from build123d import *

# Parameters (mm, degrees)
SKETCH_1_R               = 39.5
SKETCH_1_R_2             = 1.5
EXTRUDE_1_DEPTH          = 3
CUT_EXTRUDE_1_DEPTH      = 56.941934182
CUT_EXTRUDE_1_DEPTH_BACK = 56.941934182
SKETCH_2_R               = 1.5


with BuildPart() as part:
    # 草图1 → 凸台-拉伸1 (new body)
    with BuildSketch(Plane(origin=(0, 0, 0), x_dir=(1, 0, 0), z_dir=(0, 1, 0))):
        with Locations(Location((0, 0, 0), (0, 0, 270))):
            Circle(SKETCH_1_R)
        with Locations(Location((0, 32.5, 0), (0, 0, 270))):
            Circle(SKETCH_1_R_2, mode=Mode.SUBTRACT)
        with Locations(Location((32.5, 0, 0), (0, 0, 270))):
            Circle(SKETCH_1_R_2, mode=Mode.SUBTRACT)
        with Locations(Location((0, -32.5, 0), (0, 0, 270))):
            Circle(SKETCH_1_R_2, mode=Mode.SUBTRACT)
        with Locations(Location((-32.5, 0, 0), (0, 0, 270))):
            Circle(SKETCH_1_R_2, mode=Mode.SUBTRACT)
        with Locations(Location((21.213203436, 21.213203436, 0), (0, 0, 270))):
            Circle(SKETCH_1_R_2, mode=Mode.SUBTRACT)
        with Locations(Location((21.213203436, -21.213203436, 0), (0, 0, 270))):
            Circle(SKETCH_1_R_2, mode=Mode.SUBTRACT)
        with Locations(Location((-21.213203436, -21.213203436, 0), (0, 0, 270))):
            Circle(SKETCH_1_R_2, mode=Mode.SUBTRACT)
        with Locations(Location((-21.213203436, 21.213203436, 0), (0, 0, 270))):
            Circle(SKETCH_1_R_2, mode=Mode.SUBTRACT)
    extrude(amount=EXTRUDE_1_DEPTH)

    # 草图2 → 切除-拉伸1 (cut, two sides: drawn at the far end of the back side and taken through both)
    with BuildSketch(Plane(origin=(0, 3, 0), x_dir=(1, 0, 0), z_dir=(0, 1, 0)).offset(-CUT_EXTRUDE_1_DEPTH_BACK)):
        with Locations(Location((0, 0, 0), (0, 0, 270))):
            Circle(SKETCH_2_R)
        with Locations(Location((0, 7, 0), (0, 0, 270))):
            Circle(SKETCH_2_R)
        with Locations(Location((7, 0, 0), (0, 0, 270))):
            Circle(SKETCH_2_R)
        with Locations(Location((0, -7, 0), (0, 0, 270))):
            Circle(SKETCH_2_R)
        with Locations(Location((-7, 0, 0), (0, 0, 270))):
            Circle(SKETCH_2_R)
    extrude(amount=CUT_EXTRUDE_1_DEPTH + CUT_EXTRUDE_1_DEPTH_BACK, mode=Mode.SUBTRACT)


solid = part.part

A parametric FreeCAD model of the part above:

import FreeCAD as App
import Part
import Sketcher
from FreeCAD import Vector
Q = App.Units.Quantity

doc = App.newDocument("Part")
params = doc.addObject("Spreadsheet::Sheet", "Params")
for row, (alias, value) in enumerate([
    ("sketch1_diameter", "79 mm"),
    ("sketch1_diameter2", "3 mm"),
    ("pad1_length", "3 mm"),
    ("sketch2_diameter", "3 mm"),
], start=1):
    params.set(f"A{row}", alias)
    params.set(f"B{row}", "=" + value)
    params.setAlias(f"B{row}", alias)

body = doc.addObject("PartDesign::Body", "Body")

sketch1 = body.newObject("Sketcher::SketchObject", "Sketch")
sketch1.AttachmentSupport = (doc.getObject("XZ_Plane"), [""])
sketch1.MapMode = "FlatFace"
sketch1.addGeometry(Part.Circle(Vector(0, 0, 0), Vector(0, 0, 1), 39.5), False)
sketch1.addGeometry(Part.Circle(Vector(-21.2, -21.2, 0), Vector(0, 0, 1), 1.5), False)
sketch1.addGeometry(Part.Circle(Vector(0, -32.5, 0), Vector(0, 0, 1), 1.5), False)
sketch1.addGeometry(Part.Circle(Vector(-32.5, 0, 0), Vector(0, 0, 1), 1.5), False)
sketch1.addGeometry(Part.Circle(Vector(-21.2, 21.2, 0), Vector(0, 0, 1), 1.5), False)
sketch1.addGeometry(Part.Circle(Vector(21.2, -21.2, 0), Vector(0, 0, 1), 1.5), False)
sketch1.addGeometry(Part.Circle(Vector(32.5, 0, 0), Vector(0, 0, 1), 1.5), False)
sketch1.addGeometry(Part.Circle(Vector(0, 32.5, 0), Vector(0, 0, 1), 1.5), False)
sketch1.addGeometry(Part.Circle(Vector(21.2, 21.2, 0), Vector(0, 0, 1), 1.5), False)
sketch1.addConstraint(Sketcher.Constraint("Coincident", 0, 3, -1, 1))
sketch1.addConstraint(Sketcher.Constraint("Equal", 1, 2))
sketch1.addConstraint(Sketcher.Constraint("Equal", 2, 3))
sketch1.addConstraint(Sketcher.Constraint("Equal", 3, 4))
sketch1.addConstraint(Sketcher.Constraint("Equal", 4, 5))
sketch1.addConstraint(Sketcher.Constraint("Equal", 5, 6))
sketch1.addConstraint(Sketcher.Constraint("Equal", 6, 7))
sketch1.addConstraint(Sketcher.Constraint("Equal", 7, 8))
sketch1.addConstraint(Sketcher.Constraint("Symmetric", 4, 3, 5, 3, -1, 1))
sketch1.addConstraint(Sketcher.Constraint("Symmetric", 3, 3, 6, 3, -1, 1))
sketch1.addConstraint(Sketcher.Constraint("Symmetric", 2, 3, 7, 3, -1, 1))
sketch1.addConstraint(Sketcher.Constraint("Symmetric", 1, 3, 8, 3, -1, 1))
sketch1.addConstraint(Sketcher.Constraint("Symmetric", 1, 3, 5, 3, -2))
sketch1.addConstraint(Sketcher.Constraint("PointOnObject", 2, 3, -2))
sketch1.addConstraint(Sketcher.Constraint("PointOnObject", 3, 3, -1))
sketch1.addConstraint(Sketcher.Constraint("Diameter", 0, Q("79 mm")))
sketch1.addConstraint(Sketcher.Constraint("Diameter", 1, Q("3 mm")))
sketch1.addConstraint(Sketcher.Constraint("DistanceY", 2, 3, -1, 1, Q("32.5 mm")))
sketch1.addConstraint(Sketcher.Constraint("DistanceX", 3, 3, -1, 1, Q("32.5 mm")))
sketch1.addConstraint(Sketcher.Constraint("DistanceX", 1, 3, -1, 1, Q("21.213203 mm")))
sketch1.addConstraint(Sketcher.Constraint("DistanceY", 1, 3, -1, 1, Q("21.213203 mm")))
sketch1.setExpression("Constraints[15]", "Params.sketch1_diameter")
sketch1.setExpression("Constraints[16]", "Params.sketch1_diameter2")
pad1 = body.newObject("PartDesign::Pad", "Pad")
pad1.Profile = sketch1
pad1.setExpression("Length", "Params.pad1_length")
pad1.Reversed = True

sketch2 = body.newObject("Sketcher::SketchObject", "Sketch001")
sketch2.AttachmentSupport = (doc.getObject("XZ_Plane"), [""])
sketch2.MapMode = "FlatFace"
sketch2.AttachmentOffset = App.Placement(Vector(0, 0, -3), App.Rotation())
sketch2.addGeometry(Part.Circle(Vector(0, 0, 0), Vector(0, 0, 1), 1.5), False)
sketch2.addGeometry(Part.Circle(Vector(0, -7, 0), Vector(0, 0, 1), 1.5), False)
sketch2.addGeometry(Part.Circle(Vector(7, 0, 0), Vector(0, 0, 1), 1.5), False)
sketch2.addGeometry(Part.Circle(Vector(0, 7, 0), Vector(0, 0, 1), 1.5), False)
sketch2.addGeometry(Part.Circle(Vector(-7, 0, 0), Vector(0, 0, 1), 1.5), False)
sketch2.addConstraint(Sketcher.Constraint("Coincident", 0, 3, -1, 1))
sketch2.addConstraint(Sketcher.Constraint("Equal", 0, 1))
sketch2.addConstraint(Sketcher.Constraint("Equal", 1, 2))
sketch2.addConstraint(Sketcher.Constraint("Equal", 2, 3))
sketch2.addConstraint(Sketcher.Constraint("Equal", 3, 4))
sketch2.addConstraint(Sketcher.Constraint("Symmetric", 1, 3, 3, 3, -1, 1))
sketch2.addConstraint(Sketcher.Constraint("Symmetric", 2, 3, 4, 3, -1, 1))
sketch2.addConstraint(Sketcher.Constraint("PointOnObject", 1, 3, -2))
sketch2.addConstraint(Sketcher.Constraint("PointOnObject", 2, 3, -1))
sketch2.addConstraint(Sketcher.Constraint("Diameter", 0, Q("3 mm")))
sketch2.addConstraint(Sketcher.Constraint("DistanceY", 1, 3, -1, 1, Q("7 mm")))
sketch2.addConstraint(Sketcher.Constraint("DistanceX", -1, 1, 2, 3, Q("7 mm")))
sketch2.setExpression("Constraints[9]", "Params.sketch2_diameter")
pocket1 = body.newObject("PartDesign::Pocket", "Pocket")
pocket1.Profile = sketch2
pocket1.Type = "ThroughAll"
pocket1.Midplane = True

doc.recompute()
